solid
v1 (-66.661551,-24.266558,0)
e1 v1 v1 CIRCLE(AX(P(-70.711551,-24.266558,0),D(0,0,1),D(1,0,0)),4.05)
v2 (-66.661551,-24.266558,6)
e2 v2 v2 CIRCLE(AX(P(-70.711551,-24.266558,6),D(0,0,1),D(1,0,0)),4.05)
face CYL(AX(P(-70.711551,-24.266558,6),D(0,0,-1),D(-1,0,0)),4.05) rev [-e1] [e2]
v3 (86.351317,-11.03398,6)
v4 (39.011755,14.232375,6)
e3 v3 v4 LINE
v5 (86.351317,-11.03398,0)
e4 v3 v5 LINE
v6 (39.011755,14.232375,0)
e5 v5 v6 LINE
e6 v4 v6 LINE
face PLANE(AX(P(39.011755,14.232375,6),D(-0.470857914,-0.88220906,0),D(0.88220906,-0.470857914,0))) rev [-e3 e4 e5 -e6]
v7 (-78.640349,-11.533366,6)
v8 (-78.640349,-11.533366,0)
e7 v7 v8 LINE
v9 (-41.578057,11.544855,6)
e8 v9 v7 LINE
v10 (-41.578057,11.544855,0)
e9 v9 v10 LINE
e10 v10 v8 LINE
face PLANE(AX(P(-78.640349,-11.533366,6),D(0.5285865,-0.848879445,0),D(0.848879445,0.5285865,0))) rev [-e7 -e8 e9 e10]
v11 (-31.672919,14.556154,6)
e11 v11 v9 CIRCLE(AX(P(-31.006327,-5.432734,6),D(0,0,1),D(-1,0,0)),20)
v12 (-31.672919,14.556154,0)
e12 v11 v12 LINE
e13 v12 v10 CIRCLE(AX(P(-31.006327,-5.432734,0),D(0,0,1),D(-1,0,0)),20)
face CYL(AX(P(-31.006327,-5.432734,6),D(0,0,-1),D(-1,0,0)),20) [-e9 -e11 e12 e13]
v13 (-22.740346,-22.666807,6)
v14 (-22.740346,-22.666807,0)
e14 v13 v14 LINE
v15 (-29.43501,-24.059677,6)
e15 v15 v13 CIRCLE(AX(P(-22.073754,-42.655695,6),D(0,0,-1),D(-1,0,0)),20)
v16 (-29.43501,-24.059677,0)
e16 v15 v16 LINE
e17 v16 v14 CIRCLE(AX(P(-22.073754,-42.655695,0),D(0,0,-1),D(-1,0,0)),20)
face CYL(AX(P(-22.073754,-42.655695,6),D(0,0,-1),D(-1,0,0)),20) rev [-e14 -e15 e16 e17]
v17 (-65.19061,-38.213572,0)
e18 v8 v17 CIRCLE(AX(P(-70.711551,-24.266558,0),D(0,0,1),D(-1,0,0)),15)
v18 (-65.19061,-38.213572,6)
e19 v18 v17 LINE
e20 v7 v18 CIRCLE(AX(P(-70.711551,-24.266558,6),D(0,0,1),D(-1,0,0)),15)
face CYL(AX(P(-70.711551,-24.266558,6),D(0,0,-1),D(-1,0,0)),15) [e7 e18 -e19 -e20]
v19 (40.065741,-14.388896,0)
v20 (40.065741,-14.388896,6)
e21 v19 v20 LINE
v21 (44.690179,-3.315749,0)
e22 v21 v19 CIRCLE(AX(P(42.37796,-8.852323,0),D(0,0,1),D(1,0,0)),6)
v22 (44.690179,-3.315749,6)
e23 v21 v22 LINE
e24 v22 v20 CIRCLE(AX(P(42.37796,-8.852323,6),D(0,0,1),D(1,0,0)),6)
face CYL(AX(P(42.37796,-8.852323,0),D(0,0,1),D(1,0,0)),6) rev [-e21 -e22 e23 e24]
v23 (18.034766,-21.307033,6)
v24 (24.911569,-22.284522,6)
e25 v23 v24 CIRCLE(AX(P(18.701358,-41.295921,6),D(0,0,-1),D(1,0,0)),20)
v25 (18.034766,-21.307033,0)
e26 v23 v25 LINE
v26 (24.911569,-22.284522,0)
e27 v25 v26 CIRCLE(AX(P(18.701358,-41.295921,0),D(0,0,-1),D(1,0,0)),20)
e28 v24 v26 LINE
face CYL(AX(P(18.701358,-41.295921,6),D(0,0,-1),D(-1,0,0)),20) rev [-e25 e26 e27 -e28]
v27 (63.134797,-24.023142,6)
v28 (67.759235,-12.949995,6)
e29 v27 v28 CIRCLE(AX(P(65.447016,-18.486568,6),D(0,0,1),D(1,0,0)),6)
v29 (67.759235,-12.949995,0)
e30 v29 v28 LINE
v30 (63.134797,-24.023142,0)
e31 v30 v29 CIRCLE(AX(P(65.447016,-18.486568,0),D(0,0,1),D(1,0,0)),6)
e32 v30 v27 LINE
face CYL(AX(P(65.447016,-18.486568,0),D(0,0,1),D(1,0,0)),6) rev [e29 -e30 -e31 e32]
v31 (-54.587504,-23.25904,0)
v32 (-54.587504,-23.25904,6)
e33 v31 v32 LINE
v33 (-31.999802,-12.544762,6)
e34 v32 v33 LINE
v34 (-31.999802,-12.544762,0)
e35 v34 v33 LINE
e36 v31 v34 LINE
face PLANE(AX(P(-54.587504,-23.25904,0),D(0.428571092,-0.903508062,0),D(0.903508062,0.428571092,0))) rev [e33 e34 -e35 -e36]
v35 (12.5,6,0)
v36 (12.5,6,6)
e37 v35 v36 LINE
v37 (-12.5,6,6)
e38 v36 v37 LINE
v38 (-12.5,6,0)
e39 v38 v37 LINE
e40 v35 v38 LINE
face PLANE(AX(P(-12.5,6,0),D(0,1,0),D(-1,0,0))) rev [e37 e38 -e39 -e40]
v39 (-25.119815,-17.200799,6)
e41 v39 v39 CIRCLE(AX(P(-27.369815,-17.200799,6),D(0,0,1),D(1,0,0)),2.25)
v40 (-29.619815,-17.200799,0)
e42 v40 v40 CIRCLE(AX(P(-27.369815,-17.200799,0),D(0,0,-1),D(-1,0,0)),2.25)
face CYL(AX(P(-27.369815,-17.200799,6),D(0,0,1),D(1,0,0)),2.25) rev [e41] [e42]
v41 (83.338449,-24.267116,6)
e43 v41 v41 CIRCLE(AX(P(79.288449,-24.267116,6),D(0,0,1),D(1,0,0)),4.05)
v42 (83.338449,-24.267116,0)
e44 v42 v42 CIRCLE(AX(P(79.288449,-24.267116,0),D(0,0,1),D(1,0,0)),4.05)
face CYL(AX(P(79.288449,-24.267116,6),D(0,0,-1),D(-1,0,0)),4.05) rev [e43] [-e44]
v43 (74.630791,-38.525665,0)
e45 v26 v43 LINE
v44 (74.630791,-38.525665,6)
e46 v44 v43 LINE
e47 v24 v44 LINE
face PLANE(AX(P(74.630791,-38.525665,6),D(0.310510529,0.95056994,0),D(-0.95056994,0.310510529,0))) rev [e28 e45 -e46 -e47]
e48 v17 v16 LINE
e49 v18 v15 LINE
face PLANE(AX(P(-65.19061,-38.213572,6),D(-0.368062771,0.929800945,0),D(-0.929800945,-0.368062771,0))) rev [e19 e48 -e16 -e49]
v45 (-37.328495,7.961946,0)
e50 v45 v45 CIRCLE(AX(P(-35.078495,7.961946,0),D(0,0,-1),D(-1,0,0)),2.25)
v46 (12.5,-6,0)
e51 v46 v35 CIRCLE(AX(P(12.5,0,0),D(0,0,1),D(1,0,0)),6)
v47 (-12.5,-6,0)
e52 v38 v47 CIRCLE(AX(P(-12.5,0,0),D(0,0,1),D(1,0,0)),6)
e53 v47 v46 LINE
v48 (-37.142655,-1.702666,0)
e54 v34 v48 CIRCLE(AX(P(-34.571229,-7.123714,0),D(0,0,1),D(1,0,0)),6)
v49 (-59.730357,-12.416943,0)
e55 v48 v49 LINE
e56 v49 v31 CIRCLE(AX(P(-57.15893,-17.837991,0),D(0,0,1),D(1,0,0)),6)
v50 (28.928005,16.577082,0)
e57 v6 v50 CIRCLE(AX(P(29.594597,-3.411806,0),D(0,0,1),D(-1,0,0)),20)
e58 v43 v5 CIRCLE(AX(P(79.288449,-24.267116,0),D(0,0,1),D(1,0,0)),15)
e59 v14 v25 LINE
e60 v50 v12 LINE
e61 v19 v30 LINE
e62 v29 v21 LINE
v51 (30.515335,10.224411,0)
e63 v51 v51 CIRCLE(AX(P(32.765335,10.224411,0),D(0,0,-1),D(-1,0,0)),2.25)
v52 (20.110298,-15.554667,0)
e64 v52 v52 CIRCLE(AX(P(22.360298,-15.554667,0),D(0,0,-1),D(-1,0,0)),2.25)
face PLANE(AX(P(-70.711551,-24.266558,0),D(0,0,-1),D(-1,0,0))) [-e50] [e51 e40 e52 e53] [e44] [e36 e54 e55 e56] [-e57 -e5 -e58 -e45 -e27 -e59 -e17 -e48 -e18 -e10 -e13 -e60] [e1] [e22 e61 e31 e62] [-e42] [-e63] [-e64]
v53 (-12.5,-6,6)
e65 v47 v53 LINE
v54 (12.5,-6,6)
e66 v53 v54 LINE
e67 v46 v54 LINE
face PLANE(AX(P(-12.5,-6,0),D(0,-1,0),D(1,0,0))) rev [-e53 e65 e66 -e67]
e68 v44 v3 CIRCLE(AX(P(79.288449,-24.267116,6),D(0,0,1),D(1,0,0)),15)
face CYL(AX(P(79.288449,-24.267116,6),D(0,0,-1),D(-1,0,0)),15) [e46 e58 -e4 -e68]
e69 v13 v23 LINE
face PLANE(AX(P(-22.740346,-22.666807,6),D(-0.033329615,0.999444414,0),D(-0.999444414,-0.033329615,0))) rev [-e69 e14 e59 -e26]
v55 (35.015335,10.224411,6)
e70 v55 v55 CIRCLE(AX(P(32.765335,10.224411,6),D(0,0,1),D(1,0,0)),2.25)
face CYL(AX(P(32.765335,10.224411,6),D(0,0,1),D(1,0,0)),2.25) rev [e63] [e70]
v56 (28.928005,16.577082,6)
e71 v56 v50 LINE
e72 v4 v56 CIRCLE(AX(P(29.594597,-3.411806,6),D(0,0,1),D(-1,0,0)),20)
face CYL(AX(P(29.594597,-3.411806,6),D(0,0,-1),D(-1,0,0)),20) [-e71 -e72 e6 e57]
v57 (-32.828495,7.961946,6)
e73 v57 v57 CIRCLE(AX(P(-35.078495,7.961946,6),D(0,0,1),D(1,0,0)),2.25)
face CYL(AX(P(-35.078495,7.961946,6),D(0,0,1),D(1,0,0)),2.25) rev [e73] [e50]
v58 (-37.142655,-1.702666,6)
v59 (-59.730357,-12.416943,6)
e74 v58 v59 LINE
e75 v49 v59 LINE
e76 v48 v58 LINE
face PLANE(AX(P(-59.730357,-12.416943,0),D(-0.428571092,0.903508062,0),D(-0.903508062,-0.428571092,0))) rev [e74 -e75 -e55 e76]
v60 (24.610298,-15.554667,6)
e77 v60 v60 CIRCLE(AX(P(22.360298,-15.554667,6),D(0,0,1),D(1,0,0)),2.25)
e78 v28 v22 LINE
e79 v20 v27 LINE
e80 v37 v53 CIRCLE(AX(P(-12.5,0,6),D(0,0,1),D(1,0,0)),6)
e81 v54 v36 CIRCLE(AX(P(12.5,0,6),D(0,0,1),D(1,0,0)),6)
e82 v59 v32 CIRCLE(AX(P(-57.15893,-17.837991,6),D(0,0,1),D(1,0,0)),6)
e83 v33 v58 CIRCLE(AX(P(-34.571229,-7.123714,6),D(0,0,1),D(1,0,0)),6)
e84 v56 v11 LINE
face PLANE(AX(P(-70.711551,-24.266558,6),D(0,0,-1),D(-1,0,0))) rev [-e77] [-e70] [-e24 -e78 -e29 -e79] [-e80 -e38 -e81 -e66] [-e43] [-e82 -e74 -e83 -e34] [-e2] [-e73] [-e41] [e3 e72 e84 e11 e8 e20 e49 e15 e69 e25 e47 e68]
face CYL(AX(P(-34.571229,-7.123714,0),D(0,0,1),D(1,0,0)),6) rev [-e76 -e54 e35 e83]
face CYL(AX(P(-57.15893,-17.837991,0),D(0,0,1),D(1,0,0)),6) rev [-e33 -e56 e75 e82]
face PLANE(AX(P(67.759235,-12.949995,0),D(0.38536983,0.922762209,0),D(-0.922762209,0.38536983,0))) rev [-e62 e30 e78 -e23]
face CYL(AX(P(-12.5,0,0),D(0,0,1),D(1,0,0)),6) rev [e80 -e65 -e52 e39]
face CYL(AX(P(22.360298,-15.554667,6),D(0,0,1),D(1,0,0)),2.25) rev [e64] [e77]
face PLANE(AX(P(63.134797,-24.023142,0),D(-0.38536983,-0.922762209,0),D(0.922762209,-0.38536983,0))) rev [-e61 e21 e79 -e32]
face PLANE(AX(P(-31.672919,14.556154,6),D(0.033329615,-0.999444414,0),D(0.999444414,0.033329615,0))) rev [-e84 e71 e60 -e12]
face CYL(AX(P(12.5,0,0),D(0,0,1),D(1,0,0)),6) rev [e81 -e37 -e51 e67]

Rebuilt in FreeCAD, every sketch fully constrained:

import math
import FreeCAD as App
import Part
import Sketcher
Q = App.Units.Quantity

doc = App.newDocument("Part")
params = doc.addObject("Spreadsheet::Sheet", "Params")
for row, (alias, value) in enumerate([
    ("sketch1_radius", "20 mm"),
    ("sketch1_radius2", "15 mm"),
    ("sketch1_diameter", "8.1 mm"),
    ("pad1_length", "6 mm"),
    ("sketch2_diameter", "4.5 mm"),
    ("hole_diameter", "4.5 mm"),
    ("hole_depth", "80.96 mm"),
    ("sketch3_radius", "6 mm"),
    ("sketch3_width", "25 mm"),
    ("sketch3_length", "25 mm"),
], start=1):
    params.set(f"A{row}", alias)
    params.set(f"B{row}", "=" + value)
    params.setAlias(f"B{row}", alias)

body = doc.addObject("PartDesign::Body", "Body")

# Sketch on XY plane
sketch1 = body.newObject("Sketcher::SketchObject", "Sketch")
sketch1.AttachmentSupport = (doc.getObject("XY_Plane"), [""])
sketch1.MapMode = "FlatFace"
sketch1.addGeometry(Part.LineSegment(App.Vector(-65.19061, -38.213572, 0), App.Vector(-29.43501, -24.059677, 0)), False)
sketch1.addGeometry(Part.ArcOfCircle(Part.Circle(App.Vector(-22.073754, -42.655695, 0), App.Vector(0, 0, 1), 20), math.radians(91.91), math.radians(111.596193)), False)
sketch1.addGeometry(Part.LineSegment(App.Vector(-22.740346, -22.666807, 0), App.Vector(18.034766, -21.307033, 0)), False)
sketch1.addGeometry(Part.ArcOfCircle(Part.Circle(App.Vector(18.701358, -41.295921, 0), App.Vector(0, 0, 1), 20), math.radians(71.91), math.radians(91.91)), False)
sketch1.addGeometry(Part.LineSegment(App.Vector(24.911569, -22.284522, 0), App.Vector(74.630791, -38.525665, 0)), False)
sketch1.addGeometry(Part.ArcOfCircle(Part.Circle(App.Vector(79.288449, -24.267116, 0), App.Vector(0, 0, 1), 15), math.radians(-108.09), math.radians(61.91)), False)
sketch1.addGeometry(Part.LineSegment(App.Vector(86.351317, -11.03398, 0), App.Vector(39.011755, 14.232375, 0)), False)
sketch1.addGeometry(Part.ArcOfCircle(Part.Circle(App.Vector(29.594597, -3.411806, 0), App.Vector(0, 0, 1), 20), math.radians(61.91), math.radians(91.91)), False)
sketch1.addGeometry(Part.LineSegment(App.Vector(28.928005, 16.577082, 0), App.Vector(-31.672919, 14.556154, 0)), False)
sketch1.addGeometry(Part.ArcOfCircle(Part.Circle(App.Vector(-31.006327, -5.432734, 0), App.Vector(0, 0, 1), 20), math.radians(91.91), math.radians(121.91)), False)
sketch1.addGeometry(Part.LineSegment(App.Vector(-41.578057, 11.544855, 0), App.Vector(-78.640349, -11.533366, 0)), False)
sketch1.addGeometry(Part.ArcOfCircle(Part.Circle(App.Vector(-70.711551, -24.266558, 0), App.Vector(0, 0, 1), 15), math.radians(121.91), math.radians(291.596193)), False)
sketch1.addGeometry(Part.Circle(App.Vector(79.288449, -24.267116, 0), App.Vector(0, 0, 1), 4.05), False)
sketch1.addGeometry(Part.Circle(App.Vector(-70.711551, -24.266558, 0), App.Vector(0, 0, 1), 4.05), False)
sketch1.addConstraint(Sketcher.Constraint("Tangent", 0, 2, 1, 2))
sketch1.addConstraint(Sketcher.Constraint("Tangent", 1, 1, 2, 1))
sketch1.addConstraint(Sketcher.Constraint("Tangent", 2, 2, 3, 2))
sketch1.addConstraint(Sketcher.Constraint("Tangent", 3, 1, 4, 1))
sketch1.addConstraint(Sketcher.Constraint("Tangent", 4, 2, 5, 1))
sketch1.addConstraint(Sketcher.Constraint("Tangent", 5, 2, 6, 1))
sketch1.addConstraint(Sketcher.Constraint("Tangent", 6, 2, 7, 1))
sketch1.addConstraint(Sketcher.Constraint("Tangent", 7, 2, 8, 1))
sketch1.addConstraint(Sketcher.Constraint("Tangent", 8, 2, 9, 1))
sketch1.addConstraint(Sketcher.Constraint("Tangent", 9, 2, 10, 1))
sketch1.addConstraint(Sketcher.Constraint("Tangent", 10, 2, 11, 1))
sketch1.addConstraint(Sketcher.Constraint("Tangent", 11, 2, 0, 1))
sketch1.addConstraint(Sketcher.Constraint("Coincident", 12, 3, 5, 3))
sketch1.addConstraint(Sketcher.Constraint("Coincident", 13, 3, 11, 3))
sketch1.addConstraint(Sketcher.Constraint("Equal", 1, 3))
sketch1.addConstraint(Sketcher.Constraint("Equal", 3, 7))
sketch1.addConstraint(Sketcher.Constraint("Equal", 7, 9))
sketch1.addConstraint(Sketcher.Constraint("Equal", 5, 11))
sketch1.addConstraint(Sketcher.Constraint("Equal", 12, 13))
sketch1.addConstraint(Sketcher.Constraint("Parallel", 2, 8))
sketch1.addConstraint(Sketcher.Constraint("Radius", 1, 20.0))
sketch1.addConstraint(Sketcher.Constraint("Radius", 5, 15.0))
sketch1.addConstraint(Sketcher.Constraint("Diameter", 12, 8.1))
sketch1.addConstraint(Sketcher.Constraint("DistanceX", 11, 3, 5, 3, 150.0))
sketch1.addConstraint(Sketcher.Constraint("Angle", 2, Q("1.91 deg")))
sketch1.addConstraint(Sketcher.Constraint("Angle", 4, Q("-18.09 deg")))
sketch1.addConstraint(Sketcher.Constraint("Angle", 6, Q("151.91 deg")))
sketch1.addConstraint(Sketcher.Constraint("Angle", 10, Q("-148.09 deg")))
sketch1.addConstraint(Sketcher.Constraint("DistanceX", 11, 2, 0, 2, 35.7556))
sketch1.addConstraint(Sketcher.Constraint("Distance", 2, 40.797779))
sketch1.addConstraint(Sketcher.Constraint("Distance", 8, 60.634611))
sketch1.addConstraint(Sketcher.Constraint("DistanceX", -1, 1, 3, 3, 18.701358))
sketch1.addConstraint(Sketcher.Constraint("DistanceY", 3, 3, -1, 1, 41.295921))
sketch1.addConstraint(Sketcher.Constraint("DistanceX", -1, 1, 5, 3, 79.288449))
sketch1.setExpression("Constraints[20]", "Params.sketch1_radius")
sketch1.setExpression("Constraints[21]", "Params.sketch1_radius2")
sketch1.setExpression("Constraints[22]", "Params.sketch1_diameter")
pad1 = body.newObject("PartDesign::Pad", "Pad")
pad1.Profile = sketch1
pad1.setExpression("Length", "Params.pad1_length")

# Sketch on XY plane
sketch2 = body.newObject("Sketcher::SketchObject", "Sketch001")
sketch2.AttachmentSupport = (doc.getObject("XY_Plane"), [""])
sketch2.MapMode = "FlatFace"
sketch2.AttachmentOffset = App.Placement(App.Vector(0, 0, 6), App.Rotation())
sketch2.addGeometry(Part.Circle(App.Vector(-35.078495, 7.961946, 0), App.Vector(0, 0, 1), 2.25), False)
sketch2.addGeometry(Part.Circle(App.Vector(-27.369815, -17.200799, 0), App.Vector(0, 0, 1), 2.25), False)
sketch2.addGeometry(Part.Circle(App.Vector(32.765335, 10.224411, 0), App.Vector(0, 0, 1), 2.25), False)
sketch2.addGeometry(Part.Circle(App.Vector(22.360298, -15.554667, 0), App.Vector(0, 0, 1), 2.25), False)
sketch2.addConstraint(Sketcher.Constraint("Equal", 0, 1))
sketch2.addConstraint(Sketcher.Constraint("Equal", 1, 2))
sketch2.addConstraint(Sketcher.Constraint("Equal", 2, 3))
sketch2.addConstraint(Sketcher.Constraint("Diameter", 0, 4.5))
sketch2.addConstraint(Sketcher.Constraint("DistanceY", 1, 3, -1, 1, 17.200799))
sketch2.addConstraint(Sketcher.Constraint("DistanceY", -1, 1, 2, 3, 10.224411))
sketch2.addConstraint(Sketcher.Constraint("DistanceX", 0, 3, 1, 3, 7.70868))
sketch2.addConstraint(Sketcher.Constraint("DistanceX", 1, 3, 2, 3, 60.135151))
sketch2.addConstraint(Sketcher.Constraint("DistanceY", 3, 3, 2, 3, 25.779078))
sketch2.addConstraint(Sketcher.Constraint("DistanceX", 0, 3, -1, 1, 35.078495))
sketch2.addConstraint(Sketcher.Constraint("DistanceY", -1, 1, 0, 3, 7.961946))
sketch2.addConstraint(Sketcher.Constraint("DistanceX", -1, 1, 3, 3, 22.360298))
sketch2.setExpression("Constraints[3]", "Params.sketch2_diameter")
doc.recompute()
hole = body.newObject("PartDesign::Hole", "Hole")
hole.Profile = sketch2
hole.ThreadType = "None"
hole.setExpression("Diameter", "Params.hole_diameter")
hole.DepthType = "Dimension"
hole.setExpression("Depth", "Params.hole_depth")
hole.DrillPoint = "Angled"
hole.DrillPointAngle = 118

# Sketch on XY plane
sketch3 = body.newObject("Sketcher::SketchObject", "Sketch002")
sketch3.AttachmentSupport = (doc.getObject("XY_Plane"), [""])
sketch3.MapMode = "FlatFace"
sketch3.AttachmentOffset = App.Placement(App.Vector(0, 0, 6), App.Rotation())
sketch3.addGeometry(Part.LineSegment(App.Vector(-37.142655, -1.702666, 0), App.Vector(-59.730357, -12.416943, 0)), False)
sketch3.addGeometry(Part.ArcOfCircle(Part.Circle(App.Vector(-57.15893, -17.837991, 0), App.Vector(0, 0, 1), 6), math.radians(115.376912), math.radians(295.376912)), False)
sketch3.addGeometry(Part.LineSegment(App.Vector(-54.587504, -23.25904, 0), App.Vector(-31.999802, -12.544762, 0)), False)
sketch3.addGeometry(Part.ArcOfCircle(Part.Circle(App.Vector(-34.571229, -7.123714, 0), App.Vector(0, 0, 1), 6), math.radians(-64.623088), math.radians(115.376912)), False)
sketch3.addGeometry(Part.LineSegment(App.Vector(40.065741, -14.388896, 0), App.Vector(63.134797, -24.023142, 0)), False)
sketch3.addGeometry(Part.ArcOfCircle(Part.Circle(App.Vector(65.447016, -18.486568, 0), App.Vector(0, 0, 1), 6), math.radians(-112.666702), math.radians(67.333298)), False)
sketch3.addGeometry(Part.LineSegment(App.Vector(67.759235, -12.949995, 0), App.Vector(44.690179, -3.315749, 0)), False)
sketch3.addGeometry(Part.ArcOfCircle(Part.Circle(App.Vector(42.37796, -8.852323, 0), App.Vector(0, 0, 1), 6), math.radians(67.333298), math.radians(247.333298)), False)
sketch3.addGeometry(Part.LineSegment(App.Vector(12.5, 6, 0), App.Vector(-12.5, 6, 0)), False)
sketch3.addGeometry(Part.ArcOfCircle(Part.Circle(App.Vector(-12.5, 0, 0), App.Vector(0, 0, 1), 6), math.radians(90), math.radians(270)), False)
sketch3.addGeometry(Part.LineSegment(App.Vector(-12.5, -6, 0), App.Vector(12.5, -6, 0)), False)
sketch3.addGeometry(Part.ArcOfCircle(Part.Circle(App.Vector(12.5, 0, 0), App.Vector(0, 0, 1), 6), math.radians(-90), math.radians(90)), False)
sketch3.addConstraint(Sketcher.Constraint("Tangent", 0, 2, 1, 1))
sketch3.addConstraint(Sketcher.Constraint("Tangent", 1, 2, 2, 1))
sketch3.addConstraint(Sketcher.Constraint("Tangent", 2, 2, 3, 1))
sketch3.addConstraint(Sketcher.Constraint("Tangent", 3, 2, 0, 1))
sketch3.addConstraint(Sketcher.Constraint("Tangent", 4, 2, 5, 1))
sketch3.addConstraint(Sketcher.Constraint("Tangent", 5, 2, 6, 1))
sketch3.addConstraint(Sketcher.Constraint("Tangent", 6, 2, 7, 1))
sketch3.addConstraint(Sketcher.Constraint("Tangent", 7, 2, 4, 1))
sketch3.addConstraint(Sketcher.Constraint("Tangent", 8, 2, 9, 1))
sketch3.addConstraint(Sketcher.Constraint("Tangent", 9, 2, 10, 1))
sketch3.addConstraint(Sketcher.Constraint("Tangent", 10, 2, 11, 1))
sketch3.addConstraint(Sketcher.Constraint("Tangent", 11, 2, 8, 1))
sketch3.addConstraint(Sketcher.Constraint("Horizontal", 8))
sketch3.addConstraint(Sketcher.Constraint("Horizontal", 10))
sketch3.addConstraint(Sketcher.Constraint("Equal", 1, 3))
sketch3.addConstraint(Sketcher.Constraint("Equal", 3, 5))
sketch3.addConstraint(Sketcher.Constraint("Equal", 5, 7))
sketch3.addConstraint(Sketcher.Constraint("Equal", 7, 9))
sketch3.addConstraint(Sketcher.Constraint("Symmetric", 9, 3, 11, 3, -1, 1))
sketch3.addConstraint(Sketcher.Constraint("Equal", 2, 4))
sketch3.addConstraint(Sketcher.Constraint("Radius", 1, 6.0))
sketch3.addConstraint(Sketcher.Constraint("DistanceX", 8, 2, 8, 1, 25.0))
sketch3.addConstraint(Sketcher.Constraint("Distance", 0, 25.0))
sketch3.addConstraint(Sketcher.Constraint("DistanceX", 1, 3, 3, 3, 22.587702))
sketch3.addConstraint(Sketcher.Constraint("DistanceX", 2, 2, 4, 2, 95.134599))
sketch3.addConstraint(Sketcher.Constraint("DistanceY", 7, 2, 5, 2, 1.438901))
sketch3.addConstraint(Sketcher.Constraint("DistanceX", 1, 3, -1, 1, 57.15893))
sketch3.addConstraint(Sketcher.Constraint("DistanceY", 1, 3, -1, 1, 17.837991))
sketch3.addConstraint(Sketcher.Constraint("DistanceY", 5, 3, -1, 1, 18.486568))
sketch3.setExpression("Constraints[20]", "Params.sketch3_radius")
sketch3.setExpression("Constraints[21]", "Params.sketch3_width")
sketch3.setExpression("Constraints[22]", "Params.sketch3_length")
pocket1 = body.newObject("PartDesign::Pocket", "Pocket")
pocket1.Profile = sketch3
pocket1.Type = "ThroughAll"

doc.recompute()
